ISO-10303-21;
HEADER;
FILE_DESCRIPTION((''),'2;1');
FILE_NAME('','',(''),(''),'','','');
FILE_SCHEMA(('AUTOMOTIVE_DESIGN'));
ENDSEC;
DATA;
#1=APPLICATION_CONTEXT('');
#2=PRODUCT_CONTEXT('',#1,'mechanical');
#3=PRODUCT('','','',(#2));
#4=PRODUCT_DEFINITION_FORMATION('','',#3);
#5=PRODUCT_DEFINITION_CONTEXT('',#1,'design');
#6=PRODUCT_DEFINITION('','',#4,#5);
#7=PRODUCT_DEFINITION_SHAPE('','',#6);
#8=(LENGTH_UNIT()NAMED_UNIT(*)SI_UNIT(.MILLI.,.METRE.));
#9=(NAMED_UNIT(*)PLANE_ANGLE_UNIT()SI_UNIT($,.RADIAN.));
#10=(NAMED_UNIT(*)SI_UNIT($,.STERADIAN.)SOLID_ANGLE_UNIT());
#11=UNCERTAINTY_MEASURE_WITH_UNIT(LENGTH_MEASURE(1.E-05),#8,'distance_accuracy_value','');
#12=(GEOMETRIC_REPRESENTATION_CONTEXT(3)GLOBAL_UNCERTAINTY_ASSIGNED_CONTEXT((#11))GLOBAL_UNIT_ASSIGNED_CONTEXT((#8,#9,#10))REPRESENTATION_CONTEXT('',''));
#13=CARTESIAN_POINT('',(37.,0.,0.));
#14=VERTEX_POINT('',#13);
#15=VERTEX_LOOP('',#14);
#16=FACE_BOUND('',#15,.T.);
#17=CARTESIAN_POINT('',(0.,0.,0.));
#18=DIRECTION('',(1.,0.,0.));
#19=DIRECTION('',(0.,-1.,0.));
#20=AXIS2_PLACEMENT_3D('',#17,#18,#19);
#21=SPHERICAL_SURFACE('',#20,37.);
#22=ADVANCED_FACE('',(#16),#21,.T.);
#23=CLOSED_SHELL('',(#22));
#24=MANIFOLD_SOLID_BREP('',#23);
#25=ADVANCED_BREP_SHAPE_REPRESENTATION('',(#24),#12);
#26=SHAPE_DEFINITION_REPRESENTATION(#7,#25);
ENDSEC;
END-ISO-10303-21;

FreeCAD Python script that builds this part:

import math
import FreeCAD as App
import Part
import Sketcher
from FreeCAD import Vector

doc = App.newDocument("Part")
body = doc.addObject("PartDesign::Body", "Body")

sketch1 = body.newObject("Sketcher::SketchObject", "Sketch")
sketch1.AttachmentSupport = (doc.getObject("XY_Plane"), [""])
sketch1.MapMode = "FlatFace"
sketch1.addGeometry([
    Part.ArcOfCircle(Part.Circle(Vector(0, 0, 0), Vector(0, 0, 1), 37), math.radians(180), math.radians(360)),
    Part.LineSegment(Vector(37, 0, 0), Vector(-37, 0, 0)),
], False)
sketch1.addConstraint([
    Sketcher.Constraint("Coincident", 0, 1, 1, 2),
    Sketcher.Constraint("Coincident", 1, 1, 0, 2),
    Sketcher.Constraint("Horizontal", 1),
    Sketcher.Constraint("Coincident", 0, 3, -1, 1),
    Sketcher.Constraint("PointOnObject", 0, 1, -1),
    Sketcher.Constraint("Radius", 0, 37.0),
])
revolution = body.newObject("PartDesign::Revolution", "Revolution")
revolution.Profile = sketch1
revolution.ReferenceAxis = (sketch1, ["H_Axis"])
revolution.Angle = 360

doc.recompute()
